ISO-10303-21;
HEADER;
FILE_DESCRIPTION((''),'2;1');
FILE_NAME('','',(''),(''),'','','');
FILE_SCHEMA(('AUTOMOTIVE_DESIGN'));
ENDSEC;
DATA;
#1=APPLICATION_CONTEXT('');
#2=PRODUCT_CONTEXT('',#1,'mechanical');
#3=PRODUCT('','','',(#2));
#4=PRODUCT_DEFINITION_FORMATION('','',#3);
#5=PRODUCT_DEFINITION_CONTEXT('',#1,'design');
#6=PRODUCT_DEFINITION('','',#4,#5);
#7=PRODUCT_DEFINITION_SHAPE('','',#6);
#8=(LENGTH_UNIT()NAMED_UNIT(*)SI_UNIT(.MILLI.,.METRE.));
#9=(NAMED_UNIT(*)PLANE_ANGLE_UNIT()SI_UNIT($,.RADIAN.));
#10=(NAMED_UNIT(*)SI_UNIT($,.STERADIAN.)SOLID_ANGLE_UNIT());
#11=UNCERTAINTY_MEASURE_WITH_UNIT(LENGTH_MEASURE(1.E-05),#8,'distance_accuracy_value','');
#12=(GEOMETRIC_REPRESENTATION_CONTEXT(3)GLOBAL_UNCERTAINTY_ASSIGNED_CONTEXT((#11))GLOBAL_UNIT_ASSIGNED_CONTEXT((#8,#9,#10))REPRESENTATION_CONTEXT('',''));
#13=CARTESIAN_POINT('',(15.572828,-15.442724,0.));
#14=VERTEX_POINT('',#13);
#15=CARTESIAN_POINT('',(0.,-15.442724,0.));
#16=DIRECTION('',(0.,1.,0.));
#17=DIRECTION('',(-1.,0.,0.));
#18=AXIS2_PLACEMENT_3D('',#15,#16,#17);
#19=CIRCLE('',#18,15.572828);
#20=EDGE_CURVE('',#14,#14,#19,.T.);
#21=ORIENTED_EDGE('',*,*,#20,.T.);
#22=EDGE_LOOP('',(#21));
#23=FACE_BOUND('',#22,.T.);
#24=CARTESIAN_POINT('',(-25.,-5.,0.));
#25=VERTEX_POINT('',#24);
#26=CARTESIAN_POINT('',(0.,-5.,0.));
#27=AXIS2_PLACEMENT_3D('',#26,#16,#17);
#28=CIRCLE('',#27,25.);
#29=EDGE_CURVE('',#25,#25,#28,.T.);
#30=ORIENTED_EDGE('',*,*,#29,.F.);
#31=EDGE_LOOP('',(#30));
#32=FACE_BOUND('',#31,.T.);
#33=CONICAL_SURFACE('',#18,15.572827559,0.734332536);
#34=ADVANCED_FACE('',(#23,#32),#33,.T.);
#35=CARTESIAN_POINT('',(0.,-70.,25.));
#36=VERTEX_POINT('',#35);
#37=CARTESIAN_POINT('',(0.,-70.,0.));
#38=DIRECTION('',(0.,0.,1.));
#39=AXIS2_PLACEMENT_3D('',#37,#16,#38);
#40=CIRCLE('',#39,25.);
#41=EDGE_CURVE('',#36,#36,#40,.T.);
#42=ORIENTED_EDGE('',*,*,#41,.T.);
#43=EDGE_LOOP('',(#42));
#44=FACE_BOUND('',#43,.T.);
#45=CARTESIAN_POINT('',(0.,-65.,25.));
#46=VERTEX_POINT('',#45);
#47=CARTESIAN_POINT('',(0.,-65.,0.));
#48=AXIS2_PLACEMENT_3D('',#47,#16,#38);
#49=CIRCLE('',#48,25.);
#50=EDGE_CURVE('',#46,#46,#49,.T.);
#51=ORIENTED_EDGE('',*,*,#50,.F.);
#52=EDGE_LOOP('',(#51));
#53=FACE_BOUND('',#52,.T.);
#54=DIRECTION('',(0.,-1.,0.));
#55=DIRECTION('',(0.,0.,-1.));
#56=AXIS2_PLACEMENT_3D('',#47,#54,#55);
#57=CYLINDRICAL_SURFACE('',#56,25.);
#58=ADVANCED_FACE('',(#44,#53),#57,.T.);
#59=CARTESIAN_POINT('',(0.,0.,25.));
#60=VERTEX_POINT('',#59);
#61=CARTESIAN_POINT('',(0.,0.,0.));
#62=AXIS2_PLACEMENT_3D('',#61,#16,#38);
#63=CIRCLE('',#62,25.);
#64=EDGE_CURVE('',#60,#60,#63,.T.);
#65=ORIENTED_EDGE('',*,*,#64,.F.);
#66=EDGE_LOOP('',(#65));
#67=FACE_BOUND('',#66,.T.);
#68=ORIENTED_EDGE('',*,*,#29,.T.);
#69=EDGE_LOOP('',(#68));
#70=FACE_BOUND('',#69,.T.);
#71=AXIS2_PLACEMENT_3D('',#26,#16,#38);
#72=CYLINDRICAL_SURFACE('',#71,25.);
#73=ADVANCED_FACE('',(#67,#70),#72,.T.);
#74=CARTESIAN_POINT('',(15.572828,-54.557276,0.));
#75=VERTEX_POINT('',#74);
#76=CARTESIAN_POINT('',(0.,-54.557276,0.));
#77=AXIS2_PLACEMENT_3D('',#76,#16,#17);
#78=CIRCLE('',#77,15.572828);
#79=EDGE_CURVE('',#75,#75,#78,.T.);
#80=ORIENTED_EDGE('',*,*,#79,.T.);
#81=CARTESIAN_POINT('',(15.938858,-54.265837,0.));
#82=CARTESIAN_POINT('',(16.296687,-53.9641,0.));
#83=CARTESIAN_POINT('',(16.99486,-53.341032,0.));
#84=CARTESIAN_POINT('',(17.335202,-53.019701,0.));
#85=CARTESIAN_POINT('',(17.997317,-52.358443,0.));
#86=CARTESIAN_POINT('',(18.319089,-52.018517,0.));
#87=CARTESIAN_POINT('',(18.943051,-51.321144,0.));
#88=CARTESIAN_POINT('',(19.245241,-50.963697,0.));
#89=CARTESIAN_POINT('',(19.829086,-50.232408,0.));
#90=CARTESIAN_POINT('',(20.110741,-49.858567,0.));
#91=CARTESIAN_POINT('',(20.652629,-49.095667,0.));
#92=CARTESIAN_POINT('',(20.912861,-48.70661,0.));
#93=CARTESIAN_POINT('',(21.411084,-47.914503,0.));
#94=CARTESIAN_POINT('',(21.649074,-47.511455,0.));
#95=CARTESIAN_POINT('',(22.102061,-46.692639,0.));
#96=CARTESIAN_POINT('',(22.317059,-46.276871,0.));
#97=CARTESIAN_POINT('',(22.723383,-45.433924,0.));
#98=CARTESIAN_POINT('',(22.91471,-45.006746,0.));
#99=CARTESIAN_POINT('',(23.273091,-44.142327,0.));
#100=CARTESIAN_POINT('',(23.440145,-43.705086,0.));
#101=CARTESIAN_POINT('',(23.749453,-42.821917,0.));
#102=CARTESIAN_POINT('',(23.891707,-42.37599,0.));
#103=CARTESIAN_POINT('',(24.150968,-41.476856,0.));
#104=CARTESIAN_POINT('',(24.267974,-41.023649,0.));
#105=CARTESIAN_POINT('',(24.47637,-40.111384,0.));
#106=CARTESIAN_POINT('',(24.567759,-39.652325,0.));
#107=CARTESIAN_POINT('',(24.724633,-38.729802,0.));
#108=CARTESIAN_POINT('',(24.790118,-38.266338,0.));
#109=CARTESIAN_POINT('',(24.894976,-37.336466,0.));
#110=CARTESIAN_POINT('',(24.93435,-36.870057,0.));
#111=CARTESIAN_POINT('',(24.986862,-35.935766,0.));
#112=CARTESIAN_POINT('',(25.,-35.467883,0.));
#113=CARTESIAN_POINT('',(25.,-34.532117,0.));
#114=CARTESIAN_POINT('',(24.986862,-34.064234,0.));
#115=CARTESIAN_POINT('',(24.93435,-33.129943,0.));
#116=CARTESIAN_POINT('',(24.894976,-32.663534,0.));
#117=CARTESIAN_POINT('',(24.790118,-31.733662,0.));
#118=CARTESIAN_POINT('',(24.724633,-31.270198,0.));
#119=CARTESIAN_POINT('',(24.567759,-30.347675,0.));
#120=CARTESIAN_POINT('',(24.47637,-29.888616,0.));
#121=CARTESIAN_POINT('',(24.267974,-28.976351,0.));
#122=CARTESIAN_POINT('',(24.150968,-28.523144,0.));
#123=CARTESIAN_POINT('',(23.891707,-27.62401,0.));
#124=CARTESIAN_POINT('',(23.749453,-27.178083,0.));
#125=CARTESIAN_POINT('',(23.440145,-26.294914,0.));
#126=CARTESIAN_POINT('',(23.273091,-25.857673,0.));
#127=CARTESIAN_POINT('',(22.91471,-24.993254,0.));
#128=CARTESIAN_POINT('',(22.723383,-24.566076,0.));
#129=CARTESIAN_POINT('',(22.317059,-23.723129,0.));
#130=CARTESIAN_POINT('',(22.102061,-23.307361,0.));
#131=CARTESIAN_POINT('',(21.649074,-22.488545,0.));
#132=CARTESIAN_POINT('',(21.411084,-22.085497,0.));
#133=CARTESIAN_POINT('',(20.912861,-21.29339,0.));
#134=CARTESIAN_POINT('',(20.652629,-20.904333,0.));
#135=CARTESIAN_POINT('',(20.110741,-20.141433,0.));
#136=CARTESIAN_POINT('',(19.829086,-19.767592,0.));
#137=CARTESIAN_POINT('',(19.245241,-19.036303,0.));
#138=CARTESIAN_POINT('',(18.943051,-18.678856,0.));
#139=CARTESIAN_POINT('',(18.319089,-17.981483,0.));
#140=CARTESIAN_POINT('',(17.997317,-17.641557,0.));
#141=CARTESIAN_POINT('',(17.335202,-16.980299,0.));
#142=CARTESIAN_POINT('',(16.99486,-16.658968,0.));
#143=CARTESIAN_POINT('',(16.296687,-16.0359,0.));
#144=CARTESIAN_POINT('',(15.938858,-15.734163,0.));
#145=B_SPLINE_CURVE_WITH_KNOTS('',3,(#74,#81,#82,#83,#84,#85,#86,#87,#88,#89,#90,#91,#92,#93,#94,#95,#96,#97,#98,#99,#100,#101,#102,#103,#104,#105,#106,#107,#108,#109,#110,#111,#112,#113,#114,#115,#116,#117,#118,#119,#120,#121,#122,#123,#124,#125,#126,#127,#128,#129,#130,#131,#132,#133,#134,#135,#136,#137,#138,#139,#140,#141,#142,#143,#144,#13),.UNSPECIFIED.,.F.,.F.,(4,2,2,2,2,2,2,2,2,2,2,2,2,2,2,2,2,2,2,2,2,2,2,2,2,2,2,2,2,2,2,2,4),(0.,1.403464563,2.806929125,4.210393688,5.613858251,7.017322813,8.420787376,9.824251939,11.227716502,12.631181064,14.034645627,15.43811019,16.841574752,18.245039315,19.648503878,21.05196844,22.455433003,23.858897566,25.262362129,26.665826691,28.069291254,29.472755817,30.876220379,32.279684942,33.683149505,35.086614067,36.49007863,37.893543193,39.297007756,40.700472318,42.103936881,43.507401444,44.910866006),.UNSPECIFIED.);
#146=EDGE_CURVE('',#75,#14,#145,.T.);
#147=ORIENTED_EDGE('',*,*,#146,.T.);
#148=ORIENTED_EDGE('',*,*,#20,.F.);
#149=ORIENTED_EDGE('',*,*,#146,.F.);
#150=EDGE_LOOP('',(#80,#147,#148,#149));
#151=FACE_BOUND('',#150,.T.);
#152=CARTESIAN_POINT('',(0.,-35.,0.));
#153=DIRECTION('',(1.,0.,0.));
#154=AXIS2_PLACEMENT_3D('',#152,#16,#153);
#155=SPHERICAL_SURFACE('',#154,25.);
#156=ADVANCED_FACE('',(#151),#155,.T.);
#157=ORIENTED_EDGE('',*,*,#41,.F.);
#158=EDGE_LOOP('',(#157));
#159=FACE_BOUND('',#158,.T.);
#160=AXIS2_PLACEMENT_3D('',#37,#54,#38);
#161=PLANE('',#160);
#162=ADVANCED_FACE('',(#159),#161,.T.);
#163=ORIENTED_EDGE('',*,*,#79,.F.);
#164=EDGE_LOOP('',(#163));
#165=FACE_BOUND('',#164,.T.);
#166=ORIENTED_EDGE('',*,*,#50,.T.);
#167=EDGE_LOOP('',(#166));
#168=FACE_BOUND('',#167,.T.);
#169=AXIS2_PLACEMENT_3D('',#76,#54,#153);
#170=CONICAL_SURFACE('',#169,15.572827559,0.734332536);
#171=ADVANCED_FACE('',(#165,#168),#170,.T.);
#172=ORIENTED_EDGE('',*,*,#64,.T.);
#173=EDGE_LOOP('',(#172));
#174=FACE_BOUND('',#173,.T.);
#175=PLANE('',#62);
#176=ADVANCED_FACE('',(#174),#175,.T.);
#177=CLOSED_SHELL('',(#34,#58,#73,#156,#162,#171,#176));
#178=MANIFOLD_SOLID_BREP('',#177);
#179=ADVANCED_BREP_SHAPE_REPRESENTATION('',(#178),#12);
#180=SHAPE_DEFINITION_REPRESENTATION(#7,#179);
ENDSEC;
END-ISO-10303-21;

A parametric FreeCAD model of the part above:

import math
import FreeCAD as App
import Part
import Sketcher

doc = App.newDocument("Part")
body = doc.addObject("PartDesign::Body", "Body")

sketch1 = body.newObject("Sketcher::SketchObject", "Sketch")
sketch1.AttachmentSupport = (doc.getObject("XZ_Plane"), [""])
sketch1.MapMode = "FlatFace"
sketch1.addGeometry(Part.Circle(App.Vector(0, 0, 0), App.Vector(0, 0, 1), 25), False)
sketch1.addConstraint([
    Sketcher.Constraint("Coincident", 0, 3, -1, 1),
    Sketcher.Constraint("Diameter", 0, 50.0),
])
pad1 = body.newObject("PartDesign::Pad", "Pad")
pad1.Profile = sketch1
pad1.Length = 5

sketch2 = body.newObject("Sketcher::SketchObject", "Sketch001")
sketch2.AttachmentSupport = (doc.getObject("XY_Plane"), [""])
sketch2.MapMode = "FlatFace"
sketch2.addGeometry([
    Part.LineSegment(App.Vector(16, -15, 0), App.Vector(25, -5, 0)),
    Part.LineSegment(App.Vector(25, -5, 0), App.Vector(0, -5, 0)),
    Part.LineSegment(App.Vector(0, -5, 0), App.Vector(0, -65, 0)),
    Part.LineSegment(App.Vector(0, -65, 0), App.Vector(25, -65, 0)),
    Part.LineSegment(App.Vector(25, -65, 0), App.Vector(16, -55, 0)),
    Part.ArcOfCircle(Part.Circle(App.Vector(0, -35, 0), App.Vector(0, 0, 1), 25), math.radians(-51), math.radians(51)),
], False)
sketch2.addConstraint([
    Sketcher.Constraint("Coincident", 0, 2, 1, 1),
    Sketcher.Constraint("Coincident", 1, 2, 2, 1),
    Sketcher.Constraint("Coincident", 2, 2, 3, 1),
    Sketcher.Constraint("Coincident", 3, 2, 4, 1),
    Sketcher.Constraint("Coincident", 4, 2, 5, 1),
    Sketcher.Constraint("Coincident", 5, 2, 0, 1),
    Sketcher.Constraint("Horizontal", 1),
    Sketcher.Constraint("Vertical", 2),
    Sketcher.Constraint("Horizontal", 3),
    Sketcher.Constraint("PointOnObject", 5, 3, -2),
    Sketcher.Constraint("PointOnObject", 1, 2, -2),
    Sketcher.Constraint("Vertical", 0, 2, 3, 2),
    Sketcher.Constraint("Vertical", 4, 2, 5, 2),
    Sketcher.Constraint("Equal", 0, 4),
    Sketcher.Constraint("Radius", 5, 25.0),
    Sketcher.Constraint("DistanceX", 1, 2, 1, 1, 25.0),
    Sketcher.Constraint("DistanceY", 2, 2, 2, 1, 60.0),
    Sketcher.Constraint("DistanceY", 5, 3, -1, 1, 35.0),
    Sketcher.Constraint("DistanceY", 4, 2, 5, 2, 39.114552),
])
revolution = body.newObject("PartDesign::Revolution", "Revolution")
revolution.Profile = sketch2
revolution.ReferenceAxis = (sketch2, ["V_Axis"])
revolution.Angle = 360
doc.recompute()

datumplane = body.newObject("PartDesign::Plane", "DatumPlane")
datumplane.AttachmentSupport = (doc.getObject("XZ_Plane"), [""])
datumplane.MapMode = "FlatFace"
datumplane.AttachmentOffset = App.Placement(App.Vector(0, 0, 35), App.Rotation())
mirrored = body.newObject("PartDesign::Mirrored", "Mirrored")
mirrored.Originals = [pad1]
mirrored.MirrorPlane = (datumplane, [""])
body.Tip = mirrored

doc.recompute()
